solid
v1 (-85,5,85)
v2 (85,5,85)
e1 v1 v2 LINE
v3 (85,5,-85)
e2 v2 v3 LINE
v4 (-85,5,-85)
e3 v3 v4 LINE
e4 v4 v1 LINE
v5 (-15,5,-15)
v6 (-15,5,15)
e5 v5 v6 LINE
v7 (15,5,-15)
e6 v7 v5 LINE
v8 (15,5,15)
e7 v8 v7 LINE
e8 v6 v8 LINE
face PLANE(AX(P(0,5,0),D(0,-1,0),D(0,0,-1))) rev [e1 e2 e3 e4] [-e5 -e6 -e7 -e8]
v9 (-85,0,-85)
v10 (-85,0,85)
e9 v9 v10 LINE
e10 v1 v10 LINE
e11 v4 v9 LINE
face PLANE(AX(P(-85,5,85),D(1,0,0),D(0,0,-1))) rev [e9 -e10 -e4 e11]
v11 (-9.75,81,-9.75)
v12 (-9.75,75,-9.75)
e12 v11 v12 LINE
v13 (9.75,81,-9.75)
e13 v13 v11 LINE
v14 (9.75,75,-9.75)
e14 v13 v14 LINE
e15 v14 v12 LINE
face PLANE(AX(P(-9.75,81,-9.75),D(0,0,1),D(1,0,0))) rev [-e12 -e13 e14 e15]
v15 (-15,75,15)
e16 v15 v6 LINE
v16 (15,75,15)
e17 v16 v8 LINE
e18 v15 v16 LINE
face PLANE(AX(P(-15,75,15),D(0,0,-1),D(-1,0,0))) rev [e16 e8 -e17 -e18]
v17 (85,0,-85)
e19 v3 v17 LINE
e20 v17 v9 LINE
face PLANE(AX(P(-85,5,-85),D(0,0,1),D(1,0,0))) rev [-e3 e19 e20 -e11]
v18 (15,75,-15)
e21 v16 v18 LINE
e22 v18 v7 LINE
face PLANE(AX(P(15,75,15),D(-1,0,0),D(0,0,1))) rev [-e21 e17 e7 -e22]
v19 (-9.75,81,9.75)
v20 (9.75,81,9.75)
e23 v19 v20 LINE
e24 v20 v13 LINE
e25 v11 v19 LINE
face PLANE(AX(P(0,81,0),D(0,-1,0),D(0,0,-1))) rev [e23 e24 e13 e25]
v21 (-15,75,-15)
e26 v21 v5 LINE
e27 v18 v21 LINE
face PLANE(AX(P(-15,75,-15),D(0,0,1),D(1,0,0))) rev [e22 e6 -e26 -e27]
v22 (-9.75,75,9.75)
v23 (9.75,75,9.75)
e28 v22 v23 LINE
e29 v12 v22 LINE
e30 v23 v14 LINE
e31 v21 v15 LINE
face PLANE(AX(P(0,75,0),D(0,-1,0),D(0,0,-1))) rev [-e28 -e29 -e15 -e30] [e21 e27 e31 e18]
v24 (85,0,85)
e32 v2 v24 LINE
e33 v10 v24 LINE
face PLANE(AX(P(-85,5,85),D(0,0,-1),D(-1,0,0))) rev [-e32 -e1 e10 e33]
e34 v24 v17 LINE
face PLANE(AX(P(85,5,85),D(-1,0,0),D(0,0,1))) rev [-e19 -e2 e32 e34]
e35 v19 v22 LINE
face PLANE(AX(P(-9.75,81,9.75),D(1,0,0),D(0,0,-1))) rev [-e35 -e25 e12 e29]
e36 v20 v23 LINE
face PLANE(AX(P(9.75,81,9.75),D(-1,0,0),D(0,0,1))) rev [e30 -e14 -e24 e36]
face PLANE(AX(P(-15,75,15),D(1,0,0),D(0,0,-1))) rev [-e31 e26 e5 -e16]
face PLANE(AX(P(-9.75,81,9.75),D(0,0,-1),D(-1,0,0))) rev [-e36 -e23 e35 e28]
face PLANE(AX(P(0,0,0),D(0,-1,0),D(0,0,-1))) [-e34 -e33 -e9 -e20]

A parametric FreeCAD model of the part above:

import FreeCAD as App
import Part
import Sketcher
from FreeCAD import Vector
Q = App.Units.Quantity

doc = App.newDocument("Part")
params = doc.addObject("Spreadsheet::Sheet", "Params")
for row, (alias, value) in enumerate([
    ("sketch1_width", "170 mm"),
    ("pad1_length", "5 mm"),
    ("sketch2_width", "30 mm"),
    ("pad2_length", "70 mm"),
    ("sketch3_width", "19.5 mm"),
    ("pad3_length", "6 mm"),
], start=1):
    params.set(f"A{row}", alias)
    params.set(f"B{row}", "=" + value)
    params.setAlias(f"B{row}", alias)

body = doc.addObject("PartDesign::Body", "Body")

sketch1 = body.newObject("Sketcher::SketchObject", "Sketch")
sketch1.AttachmentSupport = (doc.getObject("XZ_Plane"), [""])
sketch1.MapMode = "FlatFace"
sketch1.addGeometry([
    Part.LineSegment(Vector(-85, -85, 0), Vector(-85, 85, 0)),
    Part.LineSegment(Vector(-85, 85, 0), Vector(85, 85, 0)),
    Part.LineSegment(Vector(85, 85, 0), Vector(85, -85, 0)),
    Part.LineSegment(Vector(85, -85, 0), Vector(-85, -85, 0)),
], False)
sketch1.addConstraint([
    Sketcher.Constraint("Coincident", 0, 2, 1, 1),
    Sketcher.Constraint("Coincident", 1, 2, 2, 1),
    Sketcher.Constraint("Coincident", 2, 2, 3, 1),
    Sketcher.Constraint("Coincident", 3, 2, 0, 1),
    Sketcher.Constraint("Vertical", 0),
    Sketcher.Constraint("Horizontal", 1),
    Sketcher.Constraint("Vertical", 2),
    Sketcher.Constraint("Horizontal", 3),
    Sketcher.Constraint("Symmetric", 0, 2, 2, 2, -1, 1),
    Sketcher.Constraint("Equal", 3, 0),
    Sketcher.Constraint("DistanceX", 1, 1, 1, 2, Q("170 mm")),
])
sketch1.setExpression("Constraints[10]", "Params.sketch1_width")
pad1 = body.newObject("PartDesign::Pad", "Pad")
pad1.Profile = sketch1
pad1.setExpression("Length", "Params.pad1_length")
pad1.Reversed = True

sketch2 = body.newObject("Sketcher::SketchObject", "Sketch001")
sketch2.AttachmentSupport = (doc.getObject("XZ_Plane"), [""])
sketch2.MapMode = "FlatFace"
sketch2.AttachmentOffset = App.Placement(Vector(0, 0, -5), App.Rotation())
sketch2.addGeometry([
    Part.LineSegment(Vector(-15, -15, 0), Vector(-15, 15, 0)),
    Part.LineSegment(Vector(-15, 15, 0), Vector(15, 15, 0)),
    Part.LineSegment(Vector(15, 15, 0), Vector(15, -15, 0)),
    Part.LineSegment(Vector(15, -15, 0), Vector(-15, -15, 0)),
], False)
sketch2.addConstraint([
    Sketcher.Constraint("Coincident", 0, 2, 1, 1),
    Sketcher.Constraint("Coincident", 1, 2, 2, 1),
    Sketcher.Constraint("Coincident", 2, 2, 3, 1),
    Sketcher.Constraint("Coincident", 3, 2, 0, 1),
    Sketcher.Constraint("Vertical", 0),
    Sketcher.Constraint("Horizontal", 1),
    Sketcher.Constraint("Vertical", 2),
    Sketcher.Constraint("Horizontal", 3),
    Sketcher.Constraint("Symmetric", 0, 2, 2, 2, -1, 1),
    Sketcher.Constraint("Equal", 3, 0),
    Sketcher.Constraint("DistanceX", 1, 1, 1, 2, Q("30 mm")),
])
sketch2.setExpression("Constraints[10]", "Params.sketch2_width")
pad2 = body.newObject("PartDesign::Pad", "Pad001")
pad2.Profile = sketch2
pad2.setExpression("Length", "Params.pad2_length")
pad2.Reversed = True

sketch3 = body.newObject("Sketcher::SketchObject", "Sketch002")
sketch3.AttachmentSupport = (doc.getObject("XZ_Plane"), [""])
sketch3.MapMode = "FlatFace"
sketch3.AttachmentOffset = App.Placement(Vector(0, 0, -75), App.Rotation())
sketch3.addGeometry([
    Part.LineSegment(Vector(-10, -10, 0), Vector(-10, 10, 0)),
    Part.LineSegment(Vector(-10, 10, 0), Vector(10, 10, 0)),
    Part.LineSegment(Vector(10, 10, 0), Vector(10, -10, 0)),
    Part.LineSegment(Vector(10, -10, 0), Vector(-10, -10, 0)),
], False)
sketch3.addConstraint([
    Sketcher.Constraint("Coincident", 0, 2, 1, 1),
    Sketcher.Constraint("Coincident", 1, 2, 2, 1),
    Sketcher.Constraint("Coincident", 2, 2, 3, 1),
    Sketcher.Constraint("Coincident", 3, 2, 0, 1),
    Sketcher.Constraint("Vertical", 0),
    Sketcher.Constraint("Horizontal", 1),
    Sketcher.Constraint("Vertical", 2),
    Sketcher.Constraint("Horizontal", 3),
    Sketcher.Constraint("Symmetric", 0, 2, 2, 2, -1, 1),
    Sketcher.Constraint("Equal", 3, 0),
    Sketcher.Constraint("DistanceX", 1, 1, 1, 2, Q("19.5 mm")),
])
sketch3.setExpression("Constraints[10]", "Params.sketch3_width")
pad3 = body.newObject("PartDesign::Pad", "Pad002")
pad3.Profile = sketch3
pad3.setExpression("Length", "Params.pad3_length")
pad3.Reversed = True

doc.recompute()
